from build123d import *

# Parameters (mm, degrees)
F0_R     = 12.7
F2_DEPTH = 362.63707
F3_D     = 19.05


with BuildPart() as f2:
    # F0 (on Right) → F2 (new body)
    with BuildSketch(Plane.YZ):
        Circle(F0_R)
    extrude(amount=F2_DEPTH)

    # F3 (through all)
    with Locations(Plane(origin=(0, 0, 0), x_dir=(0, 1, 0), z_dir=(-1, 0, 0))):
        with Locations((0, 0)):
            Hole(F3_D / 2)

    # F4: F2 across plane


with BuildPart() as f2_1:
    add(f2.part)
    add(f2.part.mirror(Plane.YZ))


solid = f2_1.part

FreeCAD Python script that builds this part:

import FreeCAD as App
import Part
import Sketcher

V = App.Vector
Q = App.Units.Quantity

doc = App.newDocument("Part")
body = doc.addObject("PartDesign::Body", "Body")

# Sketch on YZ plane
sketch1 = doc.addObject("Sketcher::SketchObject", "Sketch")
body.addObject(sketch1)
sketch1.AttachmentSupport = (doc.YZ_Plane, [""])
sketch1.MapMode = "FlatFace"
sketch1.addGeometry(Part.Circle(V(0, 0, 0), V(0, 0, 1), 12.7), False)
sketch1.addConstraint(Sketcher.Constraint("Coincident", 0, 3, -1, 1))
sketch1.addConstraint(Sketcher.Constraint("Diameter", 0, Q("1 in")))
pad1 = doc.addObject("PartDesign::Pad", "Pad")
body.addObject(pad1)
pad1.Profile = sketch1
pad1.Length = 362.63707

# Sketch on YZ plane
sketch2 = doc.addObject("Sketcher::SketchObject", "Sketch001")
body.addObject(sketch2)
sketch2.AttachmentSupport = (doc.YZ_Plane, [""])
sketch2.MapMode = "FlatFace"
sketch2.addGeometry(Part.Circle(V(0, 0, 0), V(0, 0, 1), 9.525), False)
sketch2.addConstraint(Sketcher.Constraint("Coincident", 0, 3, -1, 1))
sketch2.addConstraint(Sketcher.Constraint("Diameter", 0, Q("0.75 in")))
doc.recompute()
hole = doc.addObject("PartDesign::Hole", "Hole")
body.addObject(hole)
hole.Profile = sketch2
hole.ThreadType = "None"
hole.Diameter = Q("0.75 in")
hole.DepthType = "ThroughAll"
hole.Reversed = True
body2 = doc.addObject("PartDesign::Body", "Body001")
doc.recompute()

body2.BaseFeature = body
doc.recompute()

mirroring = doc.addObject("Part::Mirroring", "Mirroring")
mirroring.Source = body
mirroring.Base = V(0, 0, 0)
mirroring.Normal = V(1, 0, 0)
body3 = doc.addObject("PartDesign::Body", "Body002")
body3.BaseFeature = mirroring
boolean = doc.addObject("PartDesign::Boolean", "Boolean")
body2.addObject(boolean)
boolean.Type = "Fuse"
boolean.addObjects([body3])
doc.recompute()
mirroring.Visibility = False

doc.recompute()
